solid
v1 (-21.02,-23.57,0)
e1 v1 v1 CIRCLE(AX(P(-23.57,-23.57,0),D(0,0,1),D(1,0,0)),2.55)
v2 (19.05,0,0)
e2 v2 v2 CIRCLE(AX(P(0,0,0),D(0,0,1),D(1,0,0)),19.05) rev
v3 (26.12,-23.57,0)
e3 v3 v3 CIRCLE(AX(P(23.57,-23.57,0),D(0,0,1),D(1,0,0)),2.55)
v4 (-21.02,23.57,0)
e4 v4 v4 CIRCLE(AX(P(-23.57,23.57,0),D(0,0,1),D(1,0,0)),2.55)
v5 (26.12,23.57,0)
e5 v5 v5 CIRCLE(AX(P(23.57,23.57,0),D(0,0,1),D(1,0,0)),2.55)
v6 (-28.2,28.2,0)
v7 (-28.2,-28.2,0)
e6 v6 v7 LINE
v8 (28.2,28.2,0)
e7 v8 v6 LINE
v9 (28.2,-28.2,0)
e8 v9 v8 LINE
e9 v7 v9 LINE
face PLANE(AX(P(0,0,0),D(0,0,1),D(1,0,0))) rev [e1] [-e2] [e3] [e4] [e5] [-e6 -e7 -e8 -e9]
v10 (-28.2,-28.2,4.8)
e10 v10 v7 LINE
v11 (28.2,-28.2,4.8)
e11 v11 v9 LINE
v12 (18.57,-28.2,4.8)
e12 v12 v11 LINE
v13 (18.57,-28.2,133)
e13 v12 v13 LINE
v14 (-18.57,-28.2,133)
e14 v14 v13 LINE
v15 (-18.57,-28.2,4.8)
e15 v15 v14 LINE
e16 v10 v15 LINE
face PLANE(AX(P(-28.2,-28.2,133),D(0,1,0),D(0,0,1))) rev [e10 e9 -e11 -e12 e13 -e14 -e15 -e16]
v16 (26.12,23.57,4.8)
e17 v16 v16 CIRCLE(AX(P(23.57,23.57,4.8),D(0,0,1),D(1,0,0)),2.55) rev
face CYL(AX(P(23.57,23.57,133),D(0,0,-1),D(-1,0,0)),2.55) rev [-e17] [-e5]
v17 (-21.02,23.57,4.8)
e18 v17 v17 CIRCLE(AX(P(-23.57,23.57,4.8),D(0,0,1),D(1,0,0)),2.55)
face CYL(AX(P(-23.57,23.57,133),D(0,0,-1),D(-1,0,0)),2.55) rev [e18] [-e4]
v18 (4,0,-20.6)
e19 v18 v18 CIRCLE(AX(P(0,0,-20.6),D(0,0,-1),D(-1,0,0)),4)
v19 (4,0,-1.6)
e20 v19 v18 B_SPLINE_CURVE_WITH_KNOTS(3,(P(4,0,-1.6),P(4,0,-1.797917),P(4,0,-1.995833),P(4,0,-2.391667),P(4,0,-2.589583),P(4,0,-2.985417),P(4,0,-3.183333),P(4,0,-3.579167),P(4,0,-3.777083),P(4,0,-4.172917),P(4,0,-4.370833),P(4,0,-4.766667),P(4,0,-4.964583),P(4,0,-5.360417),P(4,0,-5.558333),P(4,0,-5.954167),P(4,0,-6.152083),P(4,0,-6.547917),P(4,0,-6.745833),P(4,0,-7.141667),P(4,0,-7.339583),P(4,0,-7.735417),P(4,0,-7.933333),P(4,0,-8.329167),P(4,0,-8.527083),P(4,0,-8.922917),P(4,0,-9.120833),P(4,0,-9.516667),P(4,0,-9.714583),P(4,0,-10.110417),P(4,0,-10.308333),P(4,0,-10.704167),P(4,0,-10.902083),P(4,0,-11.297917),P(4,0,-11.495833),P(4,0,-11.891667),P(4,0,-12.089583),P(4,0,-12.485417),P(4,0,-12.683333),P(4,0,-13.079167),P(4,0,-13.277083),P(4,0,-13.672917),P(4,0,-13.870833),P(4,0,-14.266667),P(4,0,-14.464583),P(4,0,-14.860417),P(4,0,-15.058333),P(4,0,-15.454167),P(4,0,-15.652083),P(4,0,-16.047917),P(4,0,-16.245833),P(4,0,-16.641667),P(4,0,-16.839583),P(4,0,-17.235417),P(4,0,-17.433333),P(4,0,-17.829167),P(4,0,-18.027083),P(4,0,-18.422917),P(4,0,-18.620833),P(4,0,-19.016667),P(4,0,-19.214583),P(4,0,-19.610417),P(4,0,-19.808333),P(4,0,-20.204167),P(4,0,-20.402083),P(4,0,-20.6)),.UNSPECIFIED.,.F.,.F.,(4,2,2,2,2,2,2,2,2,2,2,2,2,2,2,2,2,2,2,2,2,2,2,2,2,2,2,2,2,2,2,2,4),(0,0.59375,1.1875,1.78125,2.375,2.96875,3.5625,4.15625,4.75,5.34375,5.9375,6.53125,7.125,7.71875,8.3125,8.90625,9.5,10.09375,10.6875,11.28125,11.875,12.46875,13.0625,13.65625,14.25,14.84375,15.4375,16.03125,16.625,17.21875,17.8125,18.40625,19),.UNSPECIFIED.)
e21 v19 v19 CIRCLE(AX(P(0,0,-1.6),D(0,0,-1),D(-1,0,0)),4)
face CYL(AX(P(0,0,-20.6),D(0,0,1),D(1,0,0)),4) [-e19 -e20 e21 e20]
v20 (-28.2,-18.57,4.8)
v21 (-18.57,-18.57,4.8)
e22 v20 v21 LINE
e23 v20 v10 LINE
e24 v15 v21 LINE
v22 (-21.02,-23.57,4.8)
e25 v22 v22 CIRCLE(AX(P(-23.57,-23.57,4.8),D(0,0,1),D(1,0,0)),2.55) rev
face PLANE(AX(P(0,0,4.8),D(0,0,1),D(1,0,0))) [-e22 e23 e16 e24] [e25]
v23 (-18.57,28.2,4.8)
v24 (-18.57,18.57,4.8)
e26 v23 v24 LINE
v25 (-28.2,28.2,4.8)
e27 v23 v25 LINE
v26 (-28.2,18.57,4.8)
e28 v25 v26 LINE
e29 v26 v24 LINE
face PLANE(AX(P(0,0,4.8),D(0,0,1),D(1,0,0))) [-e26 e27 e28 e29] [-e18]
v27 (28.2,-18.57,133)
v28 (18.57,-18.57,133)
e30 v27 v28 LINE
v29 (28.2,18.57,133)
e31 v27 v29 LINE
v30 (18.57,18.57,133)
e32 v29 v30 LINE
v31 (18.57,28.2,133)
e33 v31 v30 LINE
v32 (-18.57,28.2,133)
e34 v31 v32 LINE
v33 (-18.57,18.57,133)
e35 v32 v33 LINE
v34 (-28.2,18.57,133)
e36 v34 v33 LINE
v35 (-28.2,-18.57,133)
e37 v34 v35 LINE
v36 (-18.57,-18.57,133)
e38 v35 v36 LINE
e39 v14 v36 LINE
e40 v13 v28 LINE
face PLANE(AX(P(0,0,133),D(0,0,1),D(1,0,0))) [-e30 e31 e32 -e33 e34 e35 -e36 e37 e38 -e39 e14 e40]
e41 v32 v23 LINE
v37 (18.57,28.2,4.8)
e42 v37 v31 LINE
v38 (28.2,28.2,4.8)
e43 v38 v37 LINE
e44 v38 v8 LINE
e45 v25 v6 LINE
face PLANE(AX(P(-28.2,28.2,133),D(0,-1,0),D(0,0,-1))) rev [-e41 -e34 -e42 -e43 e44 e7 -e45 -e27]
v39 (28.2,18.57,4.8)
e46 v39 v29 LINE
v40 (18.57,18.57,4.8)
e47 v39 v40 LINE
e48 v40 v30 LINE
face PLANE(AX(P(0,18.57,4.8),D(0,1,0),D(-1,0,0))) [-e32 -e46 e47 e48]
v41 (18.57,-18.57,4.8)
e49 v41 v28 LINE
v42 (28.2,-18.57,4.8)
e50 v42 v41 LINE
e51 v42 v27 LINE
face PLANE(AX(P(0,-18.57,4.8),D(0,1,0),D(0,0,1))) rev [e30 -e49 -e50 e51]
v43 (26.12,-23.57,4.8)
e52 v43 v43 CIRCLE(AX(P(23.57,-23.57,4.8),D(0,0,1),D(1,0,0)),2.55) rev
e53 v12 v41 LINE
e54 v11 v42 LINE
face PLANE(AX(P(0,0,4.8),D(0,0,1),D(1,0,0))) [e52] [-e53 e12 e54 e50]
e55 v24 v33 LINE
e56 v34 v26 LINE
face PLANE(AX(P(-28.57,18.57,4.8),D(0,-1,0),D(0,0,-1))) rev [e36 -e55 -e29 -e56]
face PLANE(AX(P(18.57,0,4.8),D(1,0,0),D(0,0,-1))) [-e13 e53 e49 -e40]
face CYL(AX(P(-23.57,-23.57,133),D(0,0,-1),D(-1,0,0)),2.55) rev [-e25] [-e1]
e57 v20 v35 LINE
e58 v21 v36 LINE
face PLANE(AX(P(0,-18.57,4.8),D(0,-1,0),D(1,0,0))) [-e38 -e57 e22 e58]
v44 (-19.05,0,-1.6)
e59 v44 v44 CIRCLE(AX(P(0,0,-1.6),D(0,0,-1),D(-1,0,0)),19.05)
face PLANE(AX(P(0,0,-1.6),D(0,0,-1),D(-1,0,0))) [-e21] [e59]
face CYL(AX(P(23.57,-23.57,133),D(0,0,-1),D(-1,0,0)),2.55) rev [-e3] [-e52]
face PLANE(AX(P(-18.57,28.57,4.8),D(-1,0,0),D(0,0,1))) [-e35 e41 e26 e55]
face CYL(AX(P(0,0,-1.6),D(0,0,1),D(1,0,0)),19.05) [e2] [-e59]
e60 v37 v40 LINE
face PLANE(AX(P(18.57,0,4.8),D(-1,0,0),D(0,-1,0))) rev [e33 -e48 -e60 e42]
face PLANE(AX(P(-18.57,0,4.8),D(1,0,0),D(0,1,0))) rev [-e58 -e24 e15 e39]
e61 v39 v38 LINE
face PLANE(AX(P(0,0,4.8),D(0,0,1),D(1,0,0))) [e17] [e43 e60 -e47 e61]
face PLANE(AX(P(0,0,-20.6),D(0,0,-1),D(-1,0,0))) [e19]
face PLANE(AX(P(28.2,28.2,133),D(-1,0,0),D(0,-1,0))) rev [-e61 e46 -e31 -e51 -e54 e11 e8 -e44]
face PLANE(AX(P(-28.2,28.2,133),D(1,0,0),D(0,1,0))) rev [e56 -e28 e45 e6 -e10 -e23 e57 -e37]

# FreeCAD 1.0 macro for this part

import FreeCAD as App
import Part
import Sketcher
Q = App.Units.Quantity


def add_polygon(sketch, points):
    """Adds a closed chain of lines whose ends are joined by coincident constraints."""
    first, n = sketch.GeometryCount, len(points)
    for a, b in zip(points, points[1:] + points[:1]):
        sketch.addGeometry(Part.LineSegment(App.Vector(*a, 0), App.Vector(*b, 0)), False)
    for i in range(n):
        sketch.addConstraint(Sketcher.Constraint("Coincident", first + i, 2, first + (i + 1) % n, 1))

doc = App.newDocument("Part")
body = doc.addObject("PartDesign::Body", "Body")

sketch1 = body.newObject("Sketcher::SketchObject", "Sketch")
sketch1.AttachmentSupport = (doc.getObject("XY_Plane"), [""])
sketch1.MapMode = "FlatFace"
add_polygon(sketch1, [(-28.2, 28.2), (-28.2, -28.2), (28.2, -28.2), (28.2, 28.2)])
sketch1.addGeometry(Part.Circle(App.Vector(-23.6, -23.6, 0), App.Vector(0, 0, 1), 2.5), False)
sketch1.addGeometry(Part.Circle(App.Vector(23.6, -23.6, 0), App.Vector(0, 0, 1), 2.5), False)
sketch1.addGeometry(Part.Circle(App.Vector(-23.6, 23.6, 0), App.Vector(0, 0, 1), 2.5), False)
sketch1.addGeometry(Part.Circle(App.Vector(23.6, 23.6, 0), App.Vector(0, 0, 1), 2.5), False)
sketch1.addConstraint([
    Sketcher.Constraint("Vertical", 0),
    Sketcher.Constraint("Horizontal", 1),
    Sketcher.Constraint("Vertical", 2),
    Sketcher.Constraint("Horizontal", 3),
    Sketcher.Constraint("Equal", 4, 5),
    Sketcher.Constraint("Equal", 5, 6),
    Sketcher.Constraint("Equal", 6, 7),
    Sketcher.Constraint("Symmetric", 5, 3, 6, 3, -1, 1),
    Sketcher.Constraint("Symmetric", 4, 3, 7, 3, -1, 1),
    Sketcher.Constraint("Symmetric", 0, 2, 2, 2, -1, 1),
    Sketcher.Constraint("Symmetric", 4, 3, 5, 3, -2),
    Sketcher.Constraint("Equal", 3, 0),
    Sketcher.Constraint("Diameter", 4, Q("5.1 mm")),
    Sketcher.Constraint("DistanceX", 1, 1, 1, 2, Q("56.4 mm")),
    Sketcher.Constraint("DistanceX", 4, 3, -1, 1, Q("23.57 mm")),
    Sketcher.Constraint("DistanceY", 4, 3, -1, 1, Q("23.57 mm")),
])
pad1 = body.newObject("PartDesign::Pad", "Pad")
pad1.Profile = sketch1
pad1.Length = 133

sketch2 = body.newObject("Sketcher::SketchObject", "Sketch001")
sketch2.AttachmentSupport = (doc.getObject("XY_Plane"), [""])
sketch2.MapMode = "FlatFace"
sketch2.AttachmentOffset = App.Placement(App.Vector(0, 0, 4.8), App.Rotation())
add_polygon(sketch2, [(-28.2, -18.6), (-28.2, -28.2), (-18.6, -28.2), (-18.6, -18.6)])
sketch2.addGeometry(Part.Circle(App.Vector(-23.6, -23.6, 0), App.Vector(0, 0, 1), 2.5), False)
add_polygon(sketch2, [(18.6, -18.6), (18.6, -28.2), (28.2, -28.2), (28.2, -18.6)])
sketch2.addGeometry(Part.Circle(App.Vector(23.6, -23.6, 0), App.Vector(0, 0, 1), 2.5), False)
add_polygon(sketch2, [(18.6, 28.2), (18.6, 18.6), (28.2, 18.6), (28.2, 28.2)])
sketch2.addGeometry(Part.Circle(App.Vector(23.6, 23.6, 0), App.Vector(0, 0, 1), 2.5), False)
add_polygon(sketch2, [(-28.6, 28.6), (-28.6, 18.6), (-18.6, 18.6), (-18.6, 28.6)])
sketch2.addConstraint([
    Sketcher.Constraint("Vertical", 0),
    Sketcher.Constraint("Horizontal", 1),
    Sketcher.Constraint("Vertical", 2),
    Sketcher.Constraint("Horizontal", 3),
    Sketcher.Constraint("Vertical", 5),
    Sketcher.Constraint("Horizontal", 6),
    Sketcher.Constraint("Vertical", 7),
    Sketcher.Constraint("Horizontal", 8),
    Sketcher.Constraint("Vertical", 10),
    Sketcher.Constraint("Horizontal", 11),
    Sketcher.Constraint("Vertical", 12),
    Sketcher.Constraint("Horizontal", 13),
    Sketcher.Constraint("Vertical", 15),
    Sketcher.Constraint("Horizontal", 16),
    Sketcher.Constraint("Vertical", 17),
    Sketcher.Constraint("Horizontal", 18),
    Sketcher.Constraint("Equal", 4, 9),
    Sketcher.Constraint("Equal", 9, 14),
    Sketcher.Constraint("Symmetric", 4, 3, 14, 3, -1, 1),
    Sketcher.Constraint("Symmetric", 2, 2, 10, 2, -1, 1),
    Sketcher.Constraint("Symmetric", 0, 2, 12, 2, -1, 1),
    Sketcher.Constraint("Symmetric", 8, 2, 16, 2, -1, 1),
    Sketcher.Constraint("Symmetric", 4, 3, 9, 3, -2),
    Sketcher.Constraint("Symmetric", 1, 2, 5, 2, -2),
    Sketcher.Constraint("Symmetric", 3, 2, 7, 2, -2),
    Sketcher.Constraint("Equal", 13, 0),
    Sketcher.Constraint("Equal", 18, 15),
    Sketcher.Constraint("Diameter", 4, Q("5.1 mm")),
    Sketcher.Constraint("DistanceX", 16, 1, 16, 2, Q("10 mm")),
    Sketcher.Constraint("DistanceX", 4, 3, 1, 2, Q("5 mm")),
    Sketcher.Constraint("DistanceY", 4, 3, 2, 2, Q("5 mm")),
    Sketcher.Constraint("DistanceX", 1, 1, 1, 2, Q("9.63 mm")),
    Sketcher.Constraint("DistanceX", 0, 2, -1, 1, Q("28.2 mm")),
    Sketcher.Constraint("DistanceY", 0, 2, -1, 1, Q("28.2 mm")),
])
pocket1 = body.newObject("PartDesign::Pocket", "Pocket")
pocket1.Profile = sketch2
pocket1.Length = 128.2
pocket1.Reversed = True

sketch3 = body.newObject("Sketcher::SketchObject", "Sketch002")
sketch3.AttachmentSupport = (doc.getObject("XY_Plane"), [""])
sketch3.MapMode = "FlatFace"
sketch3.addGeometry(Part.Circle(App.Vector(0, 0, 0), App.Vector(0, 0, 1), 4), False)
sketch3.addConstraint([
    Sketcher.Constraint("Coincident", 0, 3, -1, 1),
    Sketcher.Constraint("Diameter", 0, Q("8 mm")),
])
pad2 = body.newObject("PartDesign::Pad", "Pad001")
pad2.Profile = sketch3
pad2.Length = 20.6
pad2.Reversed = True

sketch4 = body.newObject("Sketcher::SketchObject", "Sketch003")
sketch4.AttachmentSupport = (doc.getObject("XY_Plane"), [""])
sketch4.MapMode = "FlatFace"
sketch4.addGeometry(Part.Circle(App.Vector(0, 0, 0), App.Vector(0, 0, 1), 19), False)
sketch4.addConstraint([
    Sketcher.Constraint("Coincident", 0, 3, -1, 1),
    Sketcher.Constraint("Diameter", 0, Q("38.1 mm")),
])
pad3 = body.newObject("PartDesign::Pad", "Pad002")
pad3.Profile = sketch4
pad3.Length = 1.6
pad3.Reversed = True

doc.recompute()
